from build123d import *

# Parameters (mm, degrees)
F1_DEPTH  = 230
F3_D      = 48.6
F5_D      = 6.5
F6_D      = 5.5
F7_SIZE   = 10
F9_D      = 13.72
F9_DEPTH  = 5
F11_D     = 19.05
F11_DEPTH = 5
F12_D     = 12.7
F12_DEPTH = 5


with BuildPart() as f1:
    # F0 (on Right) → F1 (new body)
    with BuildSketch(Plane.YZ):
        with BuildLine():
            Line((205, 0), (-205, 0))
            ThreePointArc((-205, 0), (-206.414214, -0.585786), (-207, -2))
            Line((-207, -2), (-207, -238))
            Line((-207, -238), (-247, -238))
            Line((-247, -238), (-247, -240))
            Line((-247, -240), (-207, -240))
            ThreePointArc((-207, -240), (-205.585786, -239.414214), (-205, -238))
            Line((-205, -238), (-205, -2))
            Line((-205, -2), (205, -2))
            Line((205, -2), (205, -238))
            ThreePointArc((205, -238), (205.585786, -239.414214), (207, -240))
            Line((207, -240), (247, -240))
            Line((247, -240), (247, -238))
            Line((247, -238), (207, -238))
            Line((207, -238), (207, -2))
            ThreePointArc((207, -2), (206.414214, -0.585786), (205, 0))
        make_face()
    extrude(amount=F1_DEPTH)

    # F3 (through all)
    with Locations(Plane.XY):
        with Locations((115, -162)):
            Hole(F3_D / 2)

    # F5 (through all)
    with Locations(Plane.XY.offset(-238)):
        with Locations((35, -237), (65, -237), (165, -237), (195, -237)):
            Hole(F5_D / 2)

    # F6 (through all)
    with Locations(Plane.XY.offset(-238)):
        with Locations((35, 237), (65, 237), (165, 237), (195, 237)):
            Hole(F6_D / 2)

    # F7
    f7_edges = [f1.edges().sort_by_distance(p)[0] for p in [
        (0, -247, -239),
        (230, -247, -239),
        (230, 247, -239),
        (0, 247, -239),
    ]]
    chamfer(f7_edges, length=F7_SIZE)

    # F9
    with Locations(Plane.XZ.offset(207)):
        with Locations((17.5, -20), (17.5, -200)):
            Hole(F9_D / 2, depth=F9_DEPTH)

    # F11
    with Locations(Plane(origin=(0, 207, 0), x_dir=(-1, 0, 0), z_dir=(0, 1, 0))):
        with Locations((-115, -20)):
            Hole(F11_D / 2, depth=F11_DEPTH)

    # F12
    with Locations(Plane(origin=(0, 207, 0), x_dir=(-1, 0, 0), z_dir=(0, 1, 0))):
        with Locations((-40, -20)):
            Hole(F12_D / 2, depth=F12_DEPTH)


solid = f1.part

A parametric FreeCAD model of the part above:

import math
import FreeCAD as App
import Part
import Sketcher

V = App.Vector


def edges_at(feature, points):
    """Names of the edges that pass closest to the given points."""
    edges = feature.Shape.Edges
    near = lambda p: min(range(len(edges)), key=lambda i: edges[i].distToShape(Part.Vertex(*p))[0])
    return sorted({f"Edge{near(p) + 1}" for p in points})

doc = App.newDocument("Part")
params = doc.addObject("Spreadsheet::Sheet", "Params")
for row, (alias, value) in enumerate([
    ("sketch1_radius", "1.999999 mm"),
    ("sketch1_width", "410 mm"),
    ("sketch1_width2", "40 mm"),
    ("sketch1_height", "236 mm"),
    ("pad1_length", "230 mm"),
    ("sketch2_diameter", "48.6 mm"),
    ("hole_diameter", "48.6 mm"),
    ("sketch3_diameter", "6.5 mm"),
    ("hole2_diameter", "6.5 mm"),
    ("sketch4_diameter", "5.5 mm"),
    ("hole3_diameter", "5.5 mm"),
    ("chamfer_size", "10 mm"),
    ("sketch5_diameter", "13.72 mm"),
    ("hole4_diameter", "13.72 mm"),
    ("hole4_depth", "5 mm"),
    ("sketch6_diameter", "19.05 mm"),
    ("hole5_diameter", "19.05 mm"),
    ("hole5_depth", "5 mm"),
    ("sketch7_diameter", "12.7 mm"),
    ("hole6_diameter", "12.7 mm"),
    ("hole6_depth", "5 mm"),
], start=1):
    params.set(f"A{row}", alias)
    params.set(f"B{row}", "=" + value)
    params.setAlias(f"B{row}", alias)

body = doc.addObject("PartDesign::Body", "Body")

sketch1 = body.newObject("Sketcher::SketchObject", "Sketch")
sketch1.AttachmentSupport = (doc.getObject("YZ_Plane"), [""])
sketch1.MapMode = "FlatFace"
sketch1.addGeometry(Part.LineSegment(V(205, 0, 0), V(-205, 0, 0)), False)
sketch1.addGeometry(Part.ArcOfCircle(Part.Circle(V(-205.000001, -1.999999, 0), V(0, 0, 1), 1.999999), math.radians(89.999957), math.radians(180.000043)), False)
sketch1.addGeometry(Part.LineSegment(V(-207, -2, 0), V(-207, -238, 0)), False)
sketch1.addGeometry(Part.LineSegment(V(-207, -238, 0), V(-247, -238, 0)), False)
sketch1.addGeometry(Part.LineSegment(V(-247, -238, 0), V(-247, -240, 0)), False)
sketch1.addGeometry(Part.LineSegment(V(-247, -240, 0), V(-207, -240, 0)), False)
sketch1.addGeometry(Part.ArcOfCircle(Part.Circle(V(-206.999999, -238.000001, 0), V(0, 0, 1), 1.999999), math.radians(-90.000043), math.radians(0.000043)), False)
sketch1.addGeometry(Part.LineSegment(V(-205, -238, 0), V(-205, -2, 0)), False)
sketch1.addGeometry(Part.LineSegment(V(-205, -2, 0), V(205, -2, 0)), False)
sketch1.addGeometry(Part.LineSegment(V(205, -2, 0), V(205, -238, 0)), False)
sketch1.addGeometry(Part.ArcOfCircle(Part.Circle(V(206.999999, -238.000001, 0), V(0, 0, 1), 1.999999), math.radians(179.999957), math.radians(270.000043)), False)
sketch1.addGeometry(Part.LineSegment(V(207, -240, 0), V(247, -240, 0)), False)
sketch1.addGeometry(Part.LineSegment(V(247, -240, 0), V(247, -238, 0)), False)
sketch1.addGeometry(Part.LineSegment(V(247, -238, 0), V(207, -238, 0)), False)
sketch1.addGeometry(Part.LineSegment(V(207, -238, 0), V(207, -2, 0)), False)
sketch1.addGeometry(Part.ArcOfCircle(Part.Circle(V(205.000001, -1.999999, 0), V(0, 0, 1), 1.999999), math.radians(-0.000043), math.radians(90.000043)), False)
sketch1.addConstraint(Sketcher.Constraint("Tangent", 0, 2, 1, 1))
sketch1.addConstraint(Sketcher.Constraint("Tangent", 1, 2, 2, 1))
sketch1.addConstraint(Sketcher.Constraint("Coincident", 2, 2, 3, 1))
sketch1.addConstraint(Sketcher.Constraint("Coincident", 3, 2, 4, 1))
sketch1.addConstraint(Sketcher.Constraint("Coincident", 4, 2, 5, 1))
sketch1.addConstraint(Sketcher.Constraint("Tangent", 5, 2, 6, 1))
sketch1.addConstraint(Sketcher.Constraint("Tangent", 6, 2, 7, 1))
sketch1.addConstraint(Sketcher.Constraint("Coincident", 7, 2, 8, 1))
sketch1.addConstraint(Sketcher.Constraint("Coincident", 8, 2, 9, 1))
sketch1.addConstraint(Sketcher.Constraint("Tangent", 9, 2, 10, 1))
sketch1.addConstraint(Sketcher.Constraint("Tangent", 10, 2, 11, 1))
sketch1.addConstraint(Sketcher.Constraint("Coincident", 11, 2, 12, 1))
sketch1.addConstraint(Sketcher.Constraint("Coincident", 12, 2, 13, 1))
sketch1.addConstraint(Sketcher.Constraint("Coincident", 13, 2, 14, 1))
sketch1.addConstraint(Sketcher.Constraint("Tangent", 14, 2, 15, 1))
sketch1.addConstraint(Sketcher.Constraint("Tangent", 15, 2, 0, 1))
sketch1.addConstraint(Sketcher.Constraint("Horizontal", 0))
sketch1.addConstraint(Sketcher.Constraint("Vertical", 2))
sketch1.addConstraint(Sketcher.Constraint("Horizontal", 3))
sketch1.addConstraint(Sketcher.Constraint("Vertical", 4))
sketch1.addConstraint(Sketcher.Constraint("Horizontal", 5))
sketch1.addConstraint(Sketcher.Constraint("Vertical", 7))
sketch1.addConstraint(Sketcher.Constraint("Horizontal", 8))
sketch1.addConstraint(Sketcher.Constraint("Vertical", 9))
sketch1.addConstraint(Sketcher.Constraint("Horizontal", 11))
sketch1.addConstraint(Sketcher.Constraint("Vertical", 12))
sketch1.addConstraint(Sketcher.Constraint("Horizontal", 13))
sketch1.addConstraint(Sketcher.Constraint("Vertical", 14))
sketch1.addConstraint(Sketcher.Constraint("Coincident", 2, 2, 6, 3))
sketch1.addConstraint(Sketcher.Constraint("Coincident", 7, 2, 1, 3))
sketch1.addConstraint(Sketcher.Constraint("Coincident", 8, 2, 15, 3))
sketch1.addConstraint(Sketcher.Constraint("Coincident", 13, 2, 10, 3))
sketch1.addConstraint(Sketcher.Constraint("Symmetric", 0, 2, 15, 2, -1, 1))
sketch1.addConstraint(Sketcher.Constraint("Symmetric", 4, 2, 11, 2, -2))
sketch1.addConstraint(Sketcher.Constraint("Radius", 1, 1.999999))
sketch1.addConstraint(Sketcher.Constraint("DistanceX", 0, 2, 0, 1, 410.0))
sketch1.addConstraint(Sketcher.Constraint("DistanceX", 3, 2, 3, 1, 40.0))
sketch1.addConstraint(Sketcher.Constraint("DistanceY", 2, 2, 2, 1, 236.0))
sketch1.setExpression("Constraints[34]", "Params.sketch1_radius")
sketch1.setExpression("Constraints[35]", "Params.sketch1_width")
sketch1.setExpression("Constraints[36]", "Params.sketch1_width2")
sketch1.setExpression("Constraints[37]", "Params.sketch1_height")
pad1 = body.newObject("PartDesign::Pad", "Pad")
pad1.Profile = sketch1
pad1.setExpression("Length", "Params.pad1_length")

sketch2 = body.newObject("Sketcher::SketchObject", "Sketch001")
sketch2.AttachmentSupport = (doc.getObject("XY_Plane"), [""])
sketch2.MapMode = "FlatFace"
sketch2.addGeometry(Part.Circle(V(115, -162, 0), V(0, 0, 1), 24.3), False)
sketch2.addConstraint(Sketcher.Constraint("Diameter", 0, 48.6))
sketch2.addConstraint(Sketcher.Constraint("DistanceX", -1, 1, 0, 3, 115.0))
sketch2.addConstraint(Sketcher.Constraint("DistanceY", 0, 3, -1, 1, 162.0))
sketch2.setExpression("Constraints[0]", "Params.sketch2_diameter")
doc.recompute()
hole = body.newObject("PartDesign::Hole", "Hole")
hole.Profile = sketch2
hole.ThreadType = "None"
hole.setExpression("Diameter", "Params.hole_diameter")
hole.DepthType = "ThroughAll"

sketch3 = body.newObject("Sketcher::SketchObject", "Sketch002")
sketch3.AttachmentSupport = (doc.getObject("XY_Plane"), [""])
sketch3.MapMode = "FlatFace"
sketch3.AttachmentOffset = App.Placement(V(0, 0, -238), App.Rotation())
sketch3.addGeometry(Part.Circle(V(35, -237, 0), V(0, 0, 1), 3.25), False)
sketch3.addGeometry(Part.Circle(V(65, -237, 0), V(0, 0, 1), 3.25), False)
sketch3.addGeometry(Part.Circle(V(165, -237, 0), V(0, 0, 1), 3.25), False)
sketch3.addGeometry(Part.Circle(V(195, -237, 0), V(0, 0, 1), 3.25), False)
sketch3.addConstraint(Sketcher.Constraint("Equal", 0, 1))
sketch3.addConstraint(Sketcher.Constraint("Equal", 1, 2))
sketch3.addConstraint(Sketcher.Constraint("Equal", 2, 3))
sketch3.addConstraint(Sketcher.Constraint("Horizontal", 0, 3, 1, 3))
sketch3.addConstraint(Sketcher.Constraint("Horizontal", 1, 3, 2, 3))
sketch3.addConstraint(Sketcher.Constraint("Horizontal", 2, 3, 3, 3))
sketch3.addConstraint(Sketcher.Constraint("Diameter", 0, 6.5))
sketch3.addConstraint(Sketcher.Constraint("DistanceX", -1, 1, 0, 3, 35.0))
sketch3.addConstraint(Sketcher.Constraint("DistanceY", 0, 3, -1, 1, 237.0))
sketch3.addConstraint(Sketcher.Constraint("DistanceX", -1, 1, 1, 3, 65.0))
sketch3.addConstraint(Sketcher.Constraint("DistanceX", -1, 1, 2, 3, 165.0))
sketch3.addConstraint(Sketcher.Constraint("DistanceX", -1, 1, 3, 3, 195.0))
sketch3.setExpression("Constraints[6]", "Params.sketch3_diameter")
doc.recompute()
hole2 = body.newObject("PartDesign::Hole", "Hole001")
hole2.Profile = sketch3
hole2.ThreadType = "None"
hole2.setExpression("Diameter", "Params.hole2_diameter")
hole2.DepthType = "ThroughAll"

sketch4 = body.newObject("Sketcher::SketchObject", "Sketch003")
sketch4.AttachmentSupport = (doc.getObject("XY_Plane"), [""])
sketch4.MapMode = "FlatFace"
sketch4.AttachmentOffset = App.Placement(V(0, 0, -238), App.Rotation())
sketch4.addGeometry(Part.Circle(V(35, 237, 0), V(0, 0, 1), 2.75), False)
sketch4.addGeometry(Part.Circle(V(65, 237, 0), V(0, 0, 1), 2.75), False)
sketch4.addGeometry(Part.Circle(V(165, 237, 0), V(0, 0, 1), 2.75), False)
sketch4.addGeometry(Part.Circle(V(195, 237, 0), V(0, 0, 1), 2.75), False)
sketch4.addConstraint(Sketcher.Constraint("Equal", 0, 1))
sketch4.addConstraint(Sketcher.Constraint("Equal", 1, 2))
sketch4.addConstraint(Sketcher.Constraint("Equal", 2, 3))
sketch4.addConstraint(Sketcher.Constraint("Horizontal", 0, 3, 1, 3))
sketch4.addConstraint(Sketcher.Constraint("Horizontal", 1, 3, 2, 3))
sketch4.addConstraint(Sketcher.Constraint("Horizontal", 2, 3, 3, 3))
sketch4.addConstraint(Sketcher.Constraint("Diameter", 0, 5.5))
sketch4.addConstraint(Sketcher.Constraint("DistanceX", -1, 1, 0, 3, 35.0))
sketch4.addConstraint(Sketcher.Constraint("DistanceY", -1, 1, 0, 3, 237.0))
sketch4.addConstraint(Sketcher.Constraint("DistanceX", -1, 1, 1, 3, 65.0))
sketch4.addConstraint(Sketcher.Constraint("DistanceX", -1, 1, 2, 3, 165.0))
sketch4.addConstraint(Sketcher.Constraint("DistanceX", -1, 1, 3, 3, 195.0))
sketch4.setExpression("Constraints[6]", "Params.sketch4_diameter")
doc.recompute()
hole3 = body.newObject("PartDesign::Hole", "Hole002")
hole3.Profile = sketch4
hole3.ThreadType = "None"
hole3.setExpression("Diameter", "Params.hole3_diameter")
hole3.DepthType = "ThroughAll"
doc.recompute()

chamfer = body.newObject("PartDesign::Chamfer", "Chamfer")
chamfer.Base = (hole3, edges_at(hole3, [
    (0, -247, -239),
    (230, -247, -239),
    (230, 247, -239),
    (0, 247, -239),
]))
chamfer.setExpression("Size", "Params.chamfer_size")

sketch5 = body.newObject("Sketcher::SketchObject", "Sketch004")
sketch5.AttachmentSupport = (doc.getObject("XZ_Plane"), [""])
sketch5.MapMode = "FlatFace"
sketch5.AttachmentOffset = App.Placement(V(0, 0, 207), App.Rotation())
sketch5.addGeometry(Part.Circle(V(17.5, -20, 0), V(0, 0, 1), 6.86), False)
sketch5.addGeometry(Part.Circle(V(17.5, -200, 0), V(0, 0, 1), 6.86), False)
sketch5.addConstraint(Sketcher.Constraint("Equal", 0, 1))
sketch5.addConstraint(Sketcher.Constraint("Vertical", 0, 3, 1, 3))
sketch5.addConstraint(Sketcher.Constraint("Diameter", 0, 13.72))
sketch5.addConstraint(Sketcher.Constraint("DistanceY", 0, 3, -1, 1, 20.0))
sketch5.addConstraint(Sketcher.Constraint("DistanceY", 1, 3, -1, 1, 200.0))
sketch5.addConstraint(Sketcher.Constraint("DistanceX", -1, 1, 0, 3, 17.5))
sketch5.setExpression("Constraints[2]", "Params.sketch5_diameter")
doc.recompute()
hole4 = body.newObject("PartDesign::Hole", "Hole003")
hole4.Profile = sketch5
hole4.ThreadType = "None"
hole4.setExpression("Diameter", "Params.hole4_diameter")
hole4.DepthType = "Dimension"
hole4.setExpression("Depth", "Params.hole4_depth")
hole4.DrillPoint = "Flat"

sketch6 = body.newObject("Sketcher::SketchObject", "Sketch005")
sketch6.AttachmentSupport = (doc.getObject("XZ_Plane"), [""])
sketch6.MapMode = "FlatFace"
sketch6.AttachmentOffset = App.Placement(V(0, 0, -207), App.Rotation())
sketch6.addGeometry(Part.Circle(V(115, -20, 0), V(0, 0, 1), 9.525), False)
sketch6.addConstraint(Sketcher.Constraint("Diameter", 0, 19.05))
sketch6.addConstraint(Sketcher.Constraint("DistanceX", -1, 1, 0, 3, 115.0))
sketch6.addConstraint(Sketcher.Constraint("DistanceY", 0, 3, -1, 1, 20.0))
sketch6.setExpression("Constraints[0]", "Params.sketch6_diameter")
doc.recompute()
hole5 = body.newObject("PartDesign::Hole", "Hole004")
hole5.Profile = sketch6
hole5.ThreadType = "None"
hole5.setExpression("Diameter", "Params.hole5_diameter")
hole5.DepthType = "Dimension"
hole5.setExpression("Depth", "Params.hole5_depth")
hole5.DrillPoint = "Flat"
hole5.Reversed = True

sketch7 = body.newObject("Sketcher::SketchObject", "Sketch006")
sketch7.AttachmentSupport = (doc.getObject("XZ_Plane"), [""])
sketch7.MapMode = "FlatFace"
sketch7.AttachmentOffset = App.Placement(V(0, 0, -207), App.Rotation())
sketch7.addGeometry(Part.Circle(V(40, -20, 0), V(0, 0, 1), 6.35), False)
sketch7.addConstraint(Sketcher.Constraint("Diameter", 0, 12.7))
sketch7.addConstraint(Sketcher.Constraint("DistanceX", -1, 1, 0, 3, 40.0))
sketch7.addConstraint(Sketcher.Constraint("DistanceY", 0, 3, -1, 1, 20.0))
sketch7.setExpression("Constraints[0]", "Params.sketch7_diameter")
doc.recompute()
hole6 = body.newObject("PartDesign::Hole", "Hole005")
hole6.Profile = sketch7
hole6.ThreadType = "None"
hole6.setExpression("Diameter", "Params.hole6_diameter")
hole6.DepthType = "Dimension"
hole6.setExpression("Depth", "Params.hole6_depth")
hole6.DrillPoint = "Flat"
hole6.Reversed = True

doc.recompute()
